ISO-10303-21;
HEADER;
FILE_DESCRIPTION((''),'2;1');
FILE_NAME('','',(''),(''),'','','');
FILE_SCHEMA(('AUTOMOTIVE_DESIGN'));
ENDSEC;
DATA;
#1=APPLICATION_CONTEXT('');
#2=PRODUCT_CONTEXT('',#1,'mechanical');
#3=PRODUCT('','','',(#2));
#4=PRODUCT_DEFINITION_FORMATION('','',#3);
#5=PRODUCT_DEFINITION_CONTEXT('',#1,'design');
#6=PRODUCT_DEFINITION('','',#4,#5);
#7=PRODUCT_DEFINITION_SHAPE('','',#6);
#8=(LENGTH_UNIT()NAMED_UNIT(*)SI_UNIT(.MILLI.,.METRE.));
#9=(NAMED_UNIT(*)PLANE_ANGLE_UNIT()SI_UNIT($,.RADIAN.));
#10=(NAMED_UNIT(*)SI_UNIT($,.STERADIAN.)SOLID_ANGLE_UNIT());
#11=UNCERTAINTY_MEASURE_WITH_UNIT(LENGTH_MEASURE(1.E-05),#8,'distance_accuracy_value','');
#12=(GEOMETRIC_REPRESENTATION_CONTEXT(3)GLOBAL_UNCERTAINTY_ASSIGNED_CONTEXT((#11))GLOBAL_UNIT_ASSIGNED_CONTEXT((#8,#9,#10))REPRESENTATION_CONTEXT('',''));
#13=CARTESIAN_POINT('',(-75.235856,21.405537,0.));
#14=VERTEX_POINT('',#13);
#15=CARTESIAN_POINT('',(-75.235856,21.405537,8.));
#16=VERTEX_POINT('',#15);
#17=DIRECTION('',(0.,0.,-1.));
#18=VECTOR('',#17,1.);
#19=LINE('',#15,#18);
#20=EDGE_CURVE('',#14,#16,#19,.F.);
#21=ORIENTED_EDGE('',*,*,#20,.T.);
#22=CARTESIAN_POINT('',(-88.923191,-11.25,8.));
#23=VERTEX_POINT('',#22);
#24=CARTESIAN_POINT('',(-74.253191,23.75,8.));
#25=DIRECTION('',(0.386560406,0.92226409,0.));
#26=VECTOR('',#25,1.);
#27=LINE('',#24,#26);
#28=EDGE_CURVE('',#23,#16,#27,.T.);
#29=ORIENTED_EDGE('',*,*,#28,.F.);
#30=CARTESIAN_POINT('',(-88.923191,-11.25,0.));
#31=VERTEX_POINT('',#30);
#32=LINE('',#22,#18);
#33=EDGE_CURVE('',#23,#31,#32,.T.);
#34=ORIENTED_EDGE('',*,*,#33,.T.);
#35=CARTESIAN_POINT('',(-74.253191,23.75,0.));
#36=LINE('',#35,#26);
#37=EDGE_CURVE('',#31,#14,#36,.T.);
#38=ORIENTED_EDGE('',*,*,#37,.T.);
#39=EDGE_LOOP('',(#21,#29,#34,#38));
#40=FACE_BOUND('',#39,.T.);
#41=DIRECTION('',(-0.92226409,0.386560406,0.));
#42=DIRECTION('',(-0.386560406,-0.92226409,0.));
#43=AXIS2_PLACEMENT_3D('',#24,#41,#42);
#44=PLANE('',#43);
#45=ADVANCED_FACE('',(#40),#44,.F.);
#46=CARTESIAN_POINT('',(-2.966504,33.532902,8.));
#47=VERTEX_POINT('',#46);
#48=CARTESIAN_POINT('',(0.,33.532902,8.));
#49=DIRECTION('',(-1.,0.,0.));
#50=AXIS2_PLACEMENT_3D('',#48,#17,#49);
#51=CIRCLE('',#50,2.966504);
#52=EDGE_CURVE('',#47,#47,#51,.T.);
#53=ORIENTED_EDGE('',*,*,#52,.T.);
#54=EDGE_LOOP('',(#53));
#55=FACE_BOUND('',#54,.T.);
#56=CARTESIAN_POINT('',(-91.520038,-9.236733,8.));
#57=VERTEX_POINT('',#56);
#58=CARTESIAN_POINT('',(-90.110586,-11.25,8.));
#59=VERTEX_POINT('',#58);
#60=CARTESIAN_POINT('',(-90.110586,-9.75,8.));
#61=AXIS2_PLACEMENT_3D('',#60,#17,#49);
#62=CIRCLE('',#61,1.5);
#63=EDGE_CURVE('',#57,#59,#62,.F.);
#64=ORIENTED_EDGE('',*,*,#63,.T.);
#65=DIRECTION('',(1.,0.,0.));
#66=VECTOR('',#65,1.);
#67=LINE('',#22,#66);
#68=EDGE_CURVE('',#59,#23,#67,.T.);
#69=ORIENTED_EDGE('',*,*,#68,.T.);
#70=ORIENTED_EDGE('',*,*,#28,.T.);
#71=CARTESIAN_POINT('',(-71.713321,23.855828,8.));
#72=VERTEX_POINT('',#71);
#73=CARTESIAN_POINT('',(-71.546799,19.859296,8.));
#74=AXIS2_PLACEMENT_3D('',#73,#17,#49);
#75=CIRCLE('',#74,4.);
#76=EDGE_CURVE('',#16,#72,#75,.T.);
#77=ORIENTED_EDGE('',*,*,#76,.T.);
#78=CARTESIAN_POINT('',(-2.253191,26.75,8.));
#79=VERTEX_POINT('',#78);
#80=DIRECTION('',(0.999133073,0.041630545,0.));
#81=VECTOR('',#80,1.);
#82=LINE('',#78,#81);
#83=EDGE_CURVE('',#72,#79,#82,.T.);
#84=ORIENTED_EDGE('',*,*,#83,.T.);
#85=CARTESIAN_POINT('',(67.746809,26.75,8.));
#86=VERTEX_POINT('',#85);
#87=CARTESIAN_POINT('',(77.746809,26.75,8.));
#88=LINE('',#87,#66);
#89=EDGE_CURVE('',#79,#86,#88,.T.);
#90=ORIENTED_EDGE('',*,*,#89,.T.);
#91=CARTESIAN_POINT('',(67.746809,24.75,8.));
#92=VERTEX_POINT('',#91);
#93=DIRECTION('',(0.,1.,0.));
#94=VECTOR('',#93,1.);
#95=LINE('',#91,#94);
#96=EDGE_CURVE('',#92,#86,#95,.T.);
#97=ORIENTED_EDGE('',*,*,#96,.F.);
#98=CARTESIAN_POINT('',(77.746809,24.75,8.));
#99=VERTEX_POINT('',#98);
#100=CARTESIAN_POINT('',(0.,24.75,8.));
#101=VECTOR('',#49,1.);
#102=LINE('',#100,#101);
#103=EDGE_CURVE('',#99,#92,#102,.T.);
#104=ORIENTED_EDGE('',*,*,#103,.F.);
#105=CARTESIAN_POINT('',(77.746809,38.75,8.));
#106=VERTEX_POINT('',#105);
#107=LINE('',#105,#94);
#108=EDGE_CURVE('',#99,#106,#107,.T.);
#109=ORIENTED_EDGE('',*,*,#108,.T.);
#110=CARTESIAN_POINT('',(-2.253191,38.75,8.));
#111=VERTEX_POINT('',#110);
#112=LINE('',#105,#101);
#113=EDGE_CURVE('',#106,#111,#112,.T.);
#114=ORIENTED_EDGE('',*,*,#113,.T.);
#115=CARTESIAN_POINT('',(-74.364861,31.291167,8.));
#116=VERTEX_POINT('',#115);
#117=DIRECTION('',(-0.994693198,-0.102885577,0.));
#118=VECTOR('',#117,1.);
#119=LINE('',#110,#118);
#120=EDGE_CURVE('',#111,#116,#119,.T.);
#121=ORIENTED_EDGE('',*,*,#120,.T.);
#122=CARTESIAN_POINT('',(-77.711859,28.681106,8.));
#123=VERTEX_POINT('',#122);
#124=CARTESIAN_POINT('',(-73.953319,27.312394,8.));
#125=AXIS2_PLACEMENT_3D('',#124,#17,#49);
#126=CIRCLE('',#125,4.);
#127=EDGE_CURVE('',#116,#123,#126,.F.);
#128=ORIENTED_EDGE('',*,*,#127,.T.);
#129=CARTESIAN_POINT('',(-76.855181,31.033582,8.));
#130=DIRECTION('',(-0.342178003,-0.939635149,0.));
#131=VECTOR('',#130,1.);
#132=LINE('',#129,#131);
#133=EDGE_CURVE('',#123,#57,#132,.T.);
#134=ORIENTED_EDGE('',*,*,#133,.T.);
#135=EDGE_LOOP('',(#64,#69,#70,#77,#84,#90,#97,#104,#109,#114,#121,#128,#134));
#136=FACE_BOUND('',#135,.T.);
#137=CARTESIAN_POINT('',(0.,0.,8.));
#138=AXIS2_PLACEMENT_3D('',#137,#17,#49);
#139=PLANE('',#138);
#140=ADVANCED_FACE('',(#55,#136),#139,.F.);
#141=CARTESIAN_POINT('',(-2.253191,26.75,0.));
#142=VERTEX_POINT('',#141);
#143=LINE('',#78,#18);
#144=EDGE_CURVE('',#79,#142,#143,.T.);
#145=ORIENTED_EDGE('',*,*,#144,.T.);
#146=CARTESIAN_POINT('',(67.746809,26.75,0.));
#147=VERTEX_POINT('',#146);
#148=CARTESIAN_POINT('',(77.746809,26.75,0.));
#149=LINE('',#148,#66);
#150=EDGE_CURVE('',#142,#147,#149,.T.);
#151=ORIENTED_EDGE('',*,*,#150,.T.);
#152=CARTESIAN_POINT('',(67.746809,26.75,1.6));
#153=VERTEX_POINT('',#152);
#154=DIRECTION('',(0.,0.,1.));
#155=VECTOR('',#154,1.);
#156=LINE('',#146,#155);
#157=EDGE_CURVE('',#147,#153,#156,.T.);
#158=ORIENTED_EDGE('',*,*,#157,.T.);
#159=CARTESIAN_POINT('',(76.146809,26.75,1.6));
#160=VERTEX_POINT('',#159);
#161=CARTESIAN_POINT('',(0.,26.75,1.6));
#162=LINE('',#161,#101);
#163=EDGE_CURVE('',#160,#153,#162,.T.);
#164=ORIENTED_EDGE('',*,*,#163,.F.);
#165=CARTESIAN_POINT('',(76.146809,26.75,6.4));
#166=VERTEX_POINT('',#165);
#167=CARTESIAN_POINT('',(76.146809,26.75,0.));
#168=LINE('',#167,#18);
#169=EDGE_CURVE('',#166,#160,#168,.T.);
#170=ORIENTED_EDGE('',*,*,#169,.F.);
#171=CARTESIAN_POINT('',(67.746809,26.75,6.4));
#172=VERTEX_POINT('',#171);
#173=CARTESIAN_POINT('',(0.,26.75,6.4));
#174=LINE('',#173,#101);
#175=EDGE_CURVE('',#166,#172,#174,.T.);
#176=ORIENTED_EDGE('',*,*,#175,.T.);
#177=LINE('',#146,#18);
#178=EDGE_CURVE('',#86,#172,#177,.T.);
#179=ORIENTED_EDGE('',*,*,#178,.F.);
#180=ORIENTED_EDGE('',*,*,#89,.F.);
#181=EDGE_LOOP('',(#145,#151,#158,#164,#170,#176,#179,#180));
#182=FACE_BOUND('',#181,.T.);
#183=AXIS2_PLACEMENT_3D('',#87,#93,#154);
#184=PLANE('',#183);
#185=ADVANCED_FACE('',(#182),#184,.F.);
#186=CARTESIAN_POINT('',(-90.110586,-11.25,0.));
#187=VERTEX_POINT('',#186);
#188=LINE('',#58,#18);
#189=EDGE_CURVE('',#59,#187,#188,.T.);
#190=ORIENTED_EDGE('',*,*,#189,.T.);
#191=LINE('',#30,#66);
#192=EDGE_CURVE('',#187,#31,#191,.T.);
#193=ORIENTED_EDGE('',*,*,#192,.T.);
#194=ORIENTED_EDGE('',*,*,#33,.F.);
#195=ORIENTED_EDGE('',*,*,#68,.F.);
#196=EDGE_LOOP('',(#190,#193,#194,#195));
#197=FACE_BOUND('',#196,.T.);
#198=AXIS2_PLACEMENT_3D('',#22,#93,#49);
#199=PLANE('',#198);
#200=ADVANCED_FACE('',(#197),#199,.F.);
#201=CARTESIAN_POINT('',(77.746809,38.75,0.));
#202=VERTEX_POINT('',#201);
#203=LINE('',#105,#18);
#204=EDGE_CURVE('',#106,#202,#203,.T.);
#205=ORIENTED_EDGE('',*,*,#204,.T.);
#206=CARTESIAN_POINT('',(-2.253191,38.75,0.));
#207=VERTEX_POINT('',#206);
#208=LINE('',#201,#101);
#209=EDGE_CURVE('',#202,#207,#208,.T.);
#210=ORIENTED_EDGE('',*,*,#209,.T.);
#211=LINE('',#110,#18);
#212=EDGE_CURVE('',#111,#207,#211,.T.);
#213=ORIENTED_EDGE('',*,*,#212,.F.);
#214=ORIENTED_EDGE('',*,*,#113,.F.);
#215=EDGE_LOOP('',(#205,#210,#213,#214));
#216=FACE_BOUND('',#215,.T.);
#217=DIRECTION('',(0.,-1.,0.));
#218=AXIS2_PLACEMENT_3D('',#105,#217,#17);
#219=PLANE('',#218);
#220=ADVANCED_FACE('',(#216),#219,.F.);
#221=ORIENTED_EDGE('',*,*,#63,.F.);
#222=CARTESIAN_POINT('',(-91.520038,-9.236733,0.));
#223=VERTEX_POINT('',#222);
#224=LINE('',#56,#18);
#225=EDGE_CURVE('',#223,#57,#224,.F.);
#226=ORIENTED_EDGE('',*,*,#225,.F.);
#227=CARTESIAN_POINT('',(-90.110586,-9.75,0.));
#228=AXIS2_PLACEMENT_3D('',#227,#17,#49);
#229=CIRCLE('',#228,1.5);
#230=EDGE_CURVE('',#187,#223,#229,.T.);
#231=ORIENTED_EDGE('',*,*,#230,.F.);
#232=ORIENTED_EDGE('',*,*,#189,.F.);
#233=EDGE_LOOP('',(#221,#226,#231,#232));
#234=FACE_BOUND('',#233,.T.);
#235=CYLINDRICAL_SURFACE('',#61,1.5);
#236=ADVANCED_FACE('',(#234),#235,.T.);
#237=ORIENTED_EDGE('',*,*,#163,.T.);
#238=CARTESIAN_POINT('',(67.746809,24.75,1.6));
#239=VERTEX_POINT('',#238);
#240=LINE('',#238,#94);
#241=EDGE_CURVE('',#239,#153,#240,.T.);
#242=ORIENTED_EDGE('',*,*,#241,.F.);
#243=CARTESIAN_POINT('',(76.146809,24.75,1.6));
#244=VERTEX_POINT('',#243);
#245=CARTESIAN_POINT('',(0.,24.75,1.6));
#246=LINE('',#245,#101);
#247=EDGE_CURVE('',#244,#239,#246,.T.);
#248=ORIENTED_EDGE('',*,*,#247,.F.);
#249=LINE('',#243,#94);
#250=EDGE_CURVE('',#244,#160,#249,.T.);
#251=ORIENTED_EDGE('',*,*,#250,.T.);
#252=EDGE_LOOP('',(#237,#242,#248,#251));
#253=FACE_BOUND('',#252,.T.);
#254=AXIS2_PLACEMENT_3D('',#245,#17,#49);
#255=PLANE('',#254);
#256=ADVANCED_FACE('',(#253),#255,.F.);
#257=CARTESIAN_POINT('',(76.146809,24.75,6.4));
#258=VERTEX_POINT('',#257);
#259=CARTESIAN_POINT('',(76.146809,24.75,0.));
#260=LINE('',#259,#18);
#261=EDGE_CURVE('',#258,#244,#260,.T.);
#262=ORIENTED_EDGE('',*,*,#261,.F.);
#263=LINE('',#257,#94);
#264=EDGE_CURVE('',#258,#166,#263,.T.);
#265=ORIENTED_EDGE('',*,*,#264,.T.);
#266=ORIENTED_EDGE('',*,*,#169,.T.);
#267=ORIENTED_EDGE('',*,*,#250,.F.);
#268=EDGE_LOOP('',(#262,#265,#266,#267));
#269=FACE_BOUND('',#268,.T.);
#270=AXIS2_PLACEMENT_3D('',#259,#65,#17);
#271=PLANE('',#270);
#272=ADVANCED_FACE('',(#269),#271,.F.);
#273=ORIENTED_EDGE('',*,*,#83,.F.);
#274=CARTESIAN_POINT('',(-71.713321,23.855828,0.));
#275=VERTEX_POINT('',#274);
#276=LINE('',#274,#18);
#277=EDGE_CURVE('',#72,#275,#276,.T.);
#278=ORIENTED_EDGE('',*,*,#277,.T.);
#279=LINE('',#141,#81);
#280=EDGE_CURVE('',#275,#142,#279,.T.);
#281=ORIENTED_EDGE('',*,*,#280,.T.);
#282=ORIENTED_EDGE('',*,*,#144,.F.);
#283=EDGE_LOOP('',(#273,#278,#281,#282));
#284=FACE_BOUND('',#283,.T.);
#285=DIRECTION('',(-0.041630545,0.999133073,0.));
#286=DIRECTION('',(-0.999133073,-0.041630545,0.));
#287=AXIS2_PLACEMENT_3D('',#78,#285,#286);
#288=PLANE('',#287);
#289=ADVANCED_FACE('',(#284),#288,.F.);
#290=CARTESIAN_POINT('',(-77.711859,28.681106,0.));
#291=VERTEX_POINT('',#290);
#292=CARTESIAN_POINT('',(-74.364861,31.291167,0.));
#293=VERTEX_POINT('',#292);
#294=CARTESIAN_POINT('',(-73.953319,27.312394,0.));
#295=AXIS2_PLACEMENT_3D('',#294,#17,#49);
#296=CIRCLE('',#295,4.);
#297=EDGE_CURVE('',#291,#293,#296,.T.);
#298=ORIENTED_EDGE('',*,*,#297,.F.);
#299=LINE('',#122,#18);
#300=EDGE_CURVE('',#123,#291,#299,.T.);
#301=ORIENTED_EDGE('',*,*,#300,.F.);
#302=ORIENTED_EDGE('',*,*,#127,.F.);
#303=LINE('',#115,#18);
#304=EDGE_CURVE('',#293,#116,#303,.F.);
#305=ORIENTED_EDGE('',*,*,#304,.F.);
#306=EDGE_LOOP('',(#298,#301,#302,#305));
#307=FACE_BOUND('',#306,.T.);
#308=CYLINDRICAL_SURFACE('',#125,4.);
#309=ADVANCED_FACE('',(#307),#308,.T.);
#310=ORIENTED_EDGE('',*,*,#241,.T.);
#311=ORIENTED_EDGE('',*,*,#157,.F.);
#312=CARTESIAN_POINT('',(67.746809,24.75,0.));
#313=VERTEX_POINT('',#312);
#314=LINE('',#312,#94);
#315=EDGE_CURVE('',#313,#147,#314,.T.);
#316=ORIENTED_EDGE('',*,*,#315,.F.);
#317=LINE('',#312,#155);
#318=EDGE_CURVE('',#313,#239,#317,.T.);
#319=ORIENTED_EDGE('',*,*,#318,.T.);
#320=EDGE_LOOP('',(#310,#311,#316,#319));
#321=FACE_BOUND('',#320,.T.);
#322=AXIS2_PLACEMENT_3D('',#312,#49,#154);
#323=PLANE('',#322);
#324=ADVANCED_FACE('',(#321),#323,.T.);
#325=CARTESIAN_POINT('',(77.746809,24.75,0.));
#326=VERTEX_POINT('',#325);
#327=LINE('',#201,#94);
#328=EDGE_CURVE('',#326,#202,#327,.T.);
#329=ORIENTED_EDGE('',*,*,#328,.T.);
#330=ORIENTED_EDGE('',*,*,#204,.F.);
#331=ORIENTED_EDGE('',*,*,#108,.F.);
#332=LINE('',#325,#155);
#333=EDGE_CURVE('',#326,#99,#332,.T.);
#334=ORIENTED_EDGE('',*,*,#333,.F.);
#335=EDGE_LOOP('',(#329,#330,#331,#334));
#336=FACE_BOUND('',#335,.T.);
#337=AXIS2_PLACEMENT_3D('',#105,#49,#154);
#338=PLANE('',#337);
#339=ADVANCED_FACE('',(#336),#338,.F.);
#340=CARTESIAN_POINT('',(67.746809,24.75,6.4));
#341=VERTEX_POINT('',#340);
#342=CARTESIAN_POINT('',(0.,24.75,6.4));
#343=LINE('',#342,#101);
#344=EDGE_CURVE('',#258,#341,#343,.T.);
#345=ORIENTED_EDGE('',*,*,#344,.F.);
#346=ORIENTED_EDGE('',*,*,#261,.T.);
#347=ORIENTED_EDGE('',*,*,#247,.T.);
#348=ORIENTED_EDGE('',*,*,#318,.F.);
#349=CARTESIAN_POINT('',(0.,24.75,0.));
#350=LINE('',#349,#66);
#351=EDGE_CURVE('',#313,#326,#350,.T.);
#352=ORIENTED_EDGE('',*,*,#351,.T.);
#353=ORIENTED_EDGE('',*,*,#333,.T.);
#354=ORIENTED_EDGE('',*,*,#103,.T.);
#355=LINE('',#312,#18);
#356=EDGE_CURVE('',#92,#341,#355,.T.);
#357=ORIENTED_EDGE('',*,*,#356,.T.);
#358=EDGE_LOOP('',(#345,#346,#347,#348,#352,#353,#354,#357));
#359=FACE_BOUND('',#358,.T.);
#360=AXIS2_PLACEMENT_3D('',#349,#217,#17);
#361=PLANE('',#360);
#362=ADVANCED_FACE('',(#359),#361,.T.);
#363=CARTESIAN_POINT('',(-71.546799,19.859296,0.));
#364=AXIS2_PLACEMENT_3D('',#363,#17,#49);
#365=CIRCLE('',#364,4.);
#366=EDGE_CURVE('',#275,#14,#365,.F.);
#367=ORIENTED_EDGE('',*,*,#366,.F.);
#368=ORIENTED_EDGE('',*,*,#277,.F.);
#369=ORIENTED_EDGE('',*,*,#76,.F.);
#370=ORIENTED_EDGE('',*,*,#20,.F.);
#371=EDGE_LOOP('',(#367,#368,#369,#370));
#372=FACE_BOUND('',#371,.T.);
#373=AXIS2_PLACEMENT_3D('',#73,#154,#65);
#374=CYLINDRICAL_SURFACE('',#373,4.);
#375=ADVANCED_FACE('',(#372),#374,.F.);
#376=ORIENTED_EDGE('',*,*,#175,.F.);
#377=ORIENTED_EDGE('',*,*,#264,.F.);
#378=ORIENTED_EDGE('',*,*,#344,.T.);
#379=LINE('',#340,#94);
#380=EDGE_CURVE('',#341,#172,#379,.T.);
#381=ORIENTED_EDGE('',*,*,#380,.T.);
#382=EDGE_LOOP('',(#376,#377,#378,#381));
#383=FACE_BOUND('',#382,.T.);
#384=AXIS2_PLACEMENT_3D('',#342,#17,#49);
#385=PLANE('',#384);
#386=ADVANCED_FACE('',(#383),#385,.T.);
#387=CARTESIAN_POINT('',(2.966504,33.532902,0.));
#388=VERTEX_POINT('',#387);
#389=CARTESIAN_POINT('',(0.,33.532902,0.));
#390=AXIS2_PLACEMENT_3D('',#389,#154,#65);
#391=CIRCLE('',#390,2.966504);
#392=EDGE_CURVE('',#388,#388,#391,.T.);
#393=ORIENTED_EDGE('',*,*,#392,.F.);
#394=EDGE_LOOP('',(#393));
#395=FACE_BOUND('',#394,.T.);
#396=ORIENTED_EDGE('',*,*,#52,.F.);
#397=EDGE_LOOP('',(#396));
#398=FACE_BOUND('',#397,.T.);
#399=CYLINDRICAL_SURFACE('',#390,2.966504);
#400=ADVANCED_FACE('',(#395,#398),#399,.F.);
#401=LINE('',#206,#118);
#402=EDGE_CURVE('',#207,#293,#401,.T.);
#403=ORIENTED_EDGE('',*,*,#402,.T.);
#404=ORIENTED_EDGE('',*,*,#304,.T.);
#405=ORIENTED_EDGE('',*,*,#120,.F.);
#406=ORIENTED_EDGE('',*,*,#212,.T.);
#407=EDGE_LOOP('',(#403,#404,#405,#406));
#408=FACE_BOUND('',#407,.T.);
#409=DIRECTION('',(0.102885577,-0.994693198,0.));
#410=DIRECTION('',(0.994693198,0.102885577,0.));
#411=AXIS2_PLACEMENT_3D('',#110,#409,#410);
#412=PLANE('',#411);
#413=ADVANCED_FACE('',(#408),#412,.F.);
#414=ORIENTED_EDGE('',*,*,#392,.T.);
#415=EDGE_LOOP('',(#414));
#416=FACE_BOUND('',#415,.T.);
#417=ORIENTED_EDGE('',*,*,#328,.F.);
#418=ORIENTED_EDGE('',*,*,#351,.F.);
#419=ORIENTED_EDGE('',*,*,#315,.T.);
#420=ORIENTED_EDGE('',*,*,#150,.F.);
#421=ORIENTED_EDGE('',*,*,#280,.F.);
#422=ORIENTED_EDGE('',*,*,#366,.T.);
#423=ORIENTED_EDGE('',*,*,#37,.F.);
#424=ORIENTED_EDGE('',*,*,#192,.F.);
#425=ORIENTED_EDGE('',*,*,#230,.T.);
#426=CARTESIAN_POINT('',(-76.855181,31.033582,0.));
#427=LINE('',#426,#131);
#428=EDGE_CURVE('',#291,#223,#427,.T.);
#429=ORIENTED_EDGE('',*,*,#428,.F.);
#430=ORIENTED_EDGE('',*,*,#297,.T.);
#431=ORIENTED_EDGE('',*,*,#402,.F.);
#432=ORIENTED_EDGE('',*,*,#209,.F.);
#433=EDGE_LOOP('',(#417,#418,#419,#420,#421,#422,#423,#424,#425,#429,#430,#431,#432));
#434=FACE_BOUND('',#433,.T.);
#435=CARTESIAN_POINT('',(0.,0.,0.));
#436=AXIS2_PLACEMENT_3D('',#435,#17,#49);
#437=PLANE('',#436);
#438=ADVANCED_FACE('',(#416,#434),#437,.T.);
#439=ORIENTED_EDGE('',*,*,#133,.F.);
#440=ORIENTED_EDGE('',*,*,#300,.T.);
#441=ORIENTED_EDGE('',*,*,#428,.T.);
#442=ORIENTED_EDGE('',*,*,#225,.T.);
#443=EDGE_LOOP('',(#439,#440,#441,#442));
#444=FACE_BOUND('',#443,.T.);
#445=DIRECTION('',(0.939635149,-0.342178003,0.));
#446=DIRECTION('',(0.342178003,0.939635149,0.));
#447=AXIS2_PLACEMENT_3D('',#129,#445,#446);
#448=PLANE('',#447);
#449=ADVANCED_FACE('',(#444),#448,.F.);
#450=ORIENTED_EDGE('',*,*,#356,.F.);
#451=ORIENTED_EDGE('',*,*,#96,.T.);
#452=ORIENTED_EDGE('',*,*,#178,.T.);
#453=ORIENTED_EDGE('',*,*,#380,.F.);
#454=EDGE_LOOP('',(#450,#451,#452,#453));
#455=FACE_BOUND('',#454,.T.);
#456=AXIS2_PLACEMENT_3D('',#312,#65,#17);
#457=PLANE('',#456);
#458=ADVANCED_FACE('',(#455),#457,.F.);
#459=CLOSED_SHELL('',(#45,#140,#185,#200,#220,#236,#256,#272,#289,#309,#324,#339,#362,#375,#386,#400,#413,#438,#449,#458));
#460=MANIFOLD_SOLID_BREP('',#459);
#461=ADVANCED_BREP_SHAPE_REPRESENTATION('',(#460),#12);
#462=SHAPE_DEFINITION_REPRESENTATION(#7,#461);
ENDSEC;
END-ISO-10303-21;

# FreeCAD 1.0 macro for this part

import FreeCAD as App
import Part
import Sketcher
from FreeCAD import Vector


def edges_at(feature, points):
    """Names of the edges that pass closest to the given points."""
    edges = feature.Shape.Edges
    near = lambda p: min(range(len(edges)), key=lambda i: edges[i].distToShape(Part.Vertex(*p))[0])
    return sorted({f"Edge{near(p) + 1}" for p in points})


def add_polygon(sketch, points):
    """Adds a closed chain of lines whose ends are joined by coincident constraints."""
    first, n = sketch.GeometryCount, len(points)
    for a, b in zip(points, points[1:] + points[:1]):
        sketch.addGeometry(Part.LineSegment(App.Vector(*a, 0), App.Vector(*b, 0)), False)
    for i in range(n):
        sketch.addConstraint(Sketcher.Constraint("Coincident", first + i, 2, first + (i + 1) % n, 1))

doc = App.newDocument("Part")
body = doc.addObject("PartDesign::Body", "Body")

sketch1 = body.newObject("Sketcher::SketchObject", "Sketch")
sketch1.AttachmentSupport = (doc.getObject("XY_Plane"), [""])
sketch1.MapMode = "FlatFace"
add_polygon(sketch1, [(77.7, 38.8), (-2.3, 38.8), (-76.9, 31), (-92.3, -11.2), (-88.9, -11.2), (-74.3, 23.8), (-2.3, 26.8), (77.7, 26.8)])
sketch1.addConstraint([
    Sketcher.Constraint("Horizontal", 0),
    Sketcher.Constraint("Horizontal", 3),
    Sketcher.Constraint("Horizontal", 6),
    Sketcher.Constraint("Vertical", 7),
    Sketcher.Constraint("Vertical", 0, 2, 5, 2),
    Sketcher.Constraint("DistanceX", 0, 2, 0, 1, 80.0),
    Sketcher.Constraint("DistanceY", 7, 1, 7, 2, 12.0),
    Sketcher.Constraint("Distance", 1, 75.0),
    Sketcher.Constraint("Distance", 2, 45.0),
    Sketcher.Constraint("DistanceX", 2, 2, 0, 2, 90.0),
    Sketcher.Constraint("DistanceY", 2, 2, 0, 2, 50.0),
    Sketcher.Constraint("DistanceY", 3, 2, 4, 2, 35.0),
    Sketcher.Constraint("DistanceX", 2, 2, 4, 2, 18.0),
    Sketcher.Constraint("DistanceX", 3, 1, 3, 2, 3.33),
    Sketcher.Constraint("DistanceY", -1, 1, 0, 2, 38.75),
    Sketcher.Constraint("DistanceX", 0, 2, -1, 1, 2.253191),
])
pad1 = body.newObject("PartDesign::Pad", "Pad")
pad1.Profile = sketch1
pad1.Length = 8

sketch2 = body.newObject("Sketcher::SketchObject", "Sketch001")
sketch2.AttachmentSupport = (doc.getObject("XZ_Plane"), [""])
sketch2.MapMode = "FlatFace"
sketch2.AttachmentOffset = App.Placement(Vector(0, 0, -26.75), App.Rotation())
add_polygon(sketch2, [(77.7, 8), (67.7, 8), (67.7, 6.4), (76.1, 6.4), (76.1, 1.6), (67.7, 1.6), (67.7, 0), (77.7, 0)])
sketch2.addConstraint([
    Sketcher.Constraint("Horizontal", 0),
    Sketcher.Constraint("Vertical", 1),
    Sketcher.Constraint("Horizontal", 2),
    Sketcher.Constraint("Vertical", 3),
    Sketcher.Constraint("Horizontal", 4),
    Sketcher.Constraint("Vertical", 5),
    Sketcher.Constraint("Horizontal", 6),
    Sketcher.Constraint("Vertical", 7),
    Sketcher.Constraint("PointOnObject", 5, 2, -1),
    Sketcher.Constraint("Vertical", 1, 2, 4, 2),
    Sketcher.Constraint("Equal", 1, 5),
    Sketcher.Constraint("DistanceX", 0, 2, 0, 1, 10.0),
    Sketcher.Constraint("DistanceY", 7, 1, 7, 2, 8.0),
    Sketcher.Constraint("DistanceX", 2, 1, 2, 2, 8.4),
    Sketcher.Constraint("DistanceY", 1, 2, 1, 1, 1.6),
    Sketcher.Constraint("DistanceX", -1, 1, 0, 2, 67.746809),
])
pad2 = body.newObject("PartDesign::Pad", "Pad001")
pad2.Profile = sketch2
pad2.Length = 2
doc.recompute()

fillet = body.newObject("PartDesign::Fillet", "Fillet")
fillet.Base = (pad2, edges_at(pad2, [(-74.253, 23.75, 4), (-76.855, 31.034, 4)]))
fillet.Radius = 4

sketch3 = body.newObject("Sketcher::SketchObject", "Sketch002")
sketch3.AttachmentSupport = (doc.getObject("XY_Plane"), [""])
sketch3.MapMode = "FlatFace"
sketch3.AttachmentOffset = App.Placement(Vector(0, 0, 8), App.Rotation())
sketch3.addGeometry(Part.Circle(Vector(0, 33.5, 0), Vector(0, 0, 1), 3), False)
sketch3.addConstraint([
    Sketcher.Constraint("PointOnObject", 0, 3, -2),
    Sketcher.Constraint("Diameter", 0, 5.933008),
    Sketcher.Constraint("DistanceY", -1, 1, 0, 3, 33.532902),
])
pocket1 = body.newObject("PartDesign::Pocket", "Pocket")
pocket1.Profile = sketch3
pocket1.Type = "ThroughAll"
pocket1.Midplane = True
doc.recompute()

fillet2 = body.newObject("PartDesign::Fillet", "Fillet001")
fillet2.Base = (pocket1, edges_at(pocket1, [(-92.253, -11.25, 4)]))
fillet2.Radius = 1.5

doc.recompute()
